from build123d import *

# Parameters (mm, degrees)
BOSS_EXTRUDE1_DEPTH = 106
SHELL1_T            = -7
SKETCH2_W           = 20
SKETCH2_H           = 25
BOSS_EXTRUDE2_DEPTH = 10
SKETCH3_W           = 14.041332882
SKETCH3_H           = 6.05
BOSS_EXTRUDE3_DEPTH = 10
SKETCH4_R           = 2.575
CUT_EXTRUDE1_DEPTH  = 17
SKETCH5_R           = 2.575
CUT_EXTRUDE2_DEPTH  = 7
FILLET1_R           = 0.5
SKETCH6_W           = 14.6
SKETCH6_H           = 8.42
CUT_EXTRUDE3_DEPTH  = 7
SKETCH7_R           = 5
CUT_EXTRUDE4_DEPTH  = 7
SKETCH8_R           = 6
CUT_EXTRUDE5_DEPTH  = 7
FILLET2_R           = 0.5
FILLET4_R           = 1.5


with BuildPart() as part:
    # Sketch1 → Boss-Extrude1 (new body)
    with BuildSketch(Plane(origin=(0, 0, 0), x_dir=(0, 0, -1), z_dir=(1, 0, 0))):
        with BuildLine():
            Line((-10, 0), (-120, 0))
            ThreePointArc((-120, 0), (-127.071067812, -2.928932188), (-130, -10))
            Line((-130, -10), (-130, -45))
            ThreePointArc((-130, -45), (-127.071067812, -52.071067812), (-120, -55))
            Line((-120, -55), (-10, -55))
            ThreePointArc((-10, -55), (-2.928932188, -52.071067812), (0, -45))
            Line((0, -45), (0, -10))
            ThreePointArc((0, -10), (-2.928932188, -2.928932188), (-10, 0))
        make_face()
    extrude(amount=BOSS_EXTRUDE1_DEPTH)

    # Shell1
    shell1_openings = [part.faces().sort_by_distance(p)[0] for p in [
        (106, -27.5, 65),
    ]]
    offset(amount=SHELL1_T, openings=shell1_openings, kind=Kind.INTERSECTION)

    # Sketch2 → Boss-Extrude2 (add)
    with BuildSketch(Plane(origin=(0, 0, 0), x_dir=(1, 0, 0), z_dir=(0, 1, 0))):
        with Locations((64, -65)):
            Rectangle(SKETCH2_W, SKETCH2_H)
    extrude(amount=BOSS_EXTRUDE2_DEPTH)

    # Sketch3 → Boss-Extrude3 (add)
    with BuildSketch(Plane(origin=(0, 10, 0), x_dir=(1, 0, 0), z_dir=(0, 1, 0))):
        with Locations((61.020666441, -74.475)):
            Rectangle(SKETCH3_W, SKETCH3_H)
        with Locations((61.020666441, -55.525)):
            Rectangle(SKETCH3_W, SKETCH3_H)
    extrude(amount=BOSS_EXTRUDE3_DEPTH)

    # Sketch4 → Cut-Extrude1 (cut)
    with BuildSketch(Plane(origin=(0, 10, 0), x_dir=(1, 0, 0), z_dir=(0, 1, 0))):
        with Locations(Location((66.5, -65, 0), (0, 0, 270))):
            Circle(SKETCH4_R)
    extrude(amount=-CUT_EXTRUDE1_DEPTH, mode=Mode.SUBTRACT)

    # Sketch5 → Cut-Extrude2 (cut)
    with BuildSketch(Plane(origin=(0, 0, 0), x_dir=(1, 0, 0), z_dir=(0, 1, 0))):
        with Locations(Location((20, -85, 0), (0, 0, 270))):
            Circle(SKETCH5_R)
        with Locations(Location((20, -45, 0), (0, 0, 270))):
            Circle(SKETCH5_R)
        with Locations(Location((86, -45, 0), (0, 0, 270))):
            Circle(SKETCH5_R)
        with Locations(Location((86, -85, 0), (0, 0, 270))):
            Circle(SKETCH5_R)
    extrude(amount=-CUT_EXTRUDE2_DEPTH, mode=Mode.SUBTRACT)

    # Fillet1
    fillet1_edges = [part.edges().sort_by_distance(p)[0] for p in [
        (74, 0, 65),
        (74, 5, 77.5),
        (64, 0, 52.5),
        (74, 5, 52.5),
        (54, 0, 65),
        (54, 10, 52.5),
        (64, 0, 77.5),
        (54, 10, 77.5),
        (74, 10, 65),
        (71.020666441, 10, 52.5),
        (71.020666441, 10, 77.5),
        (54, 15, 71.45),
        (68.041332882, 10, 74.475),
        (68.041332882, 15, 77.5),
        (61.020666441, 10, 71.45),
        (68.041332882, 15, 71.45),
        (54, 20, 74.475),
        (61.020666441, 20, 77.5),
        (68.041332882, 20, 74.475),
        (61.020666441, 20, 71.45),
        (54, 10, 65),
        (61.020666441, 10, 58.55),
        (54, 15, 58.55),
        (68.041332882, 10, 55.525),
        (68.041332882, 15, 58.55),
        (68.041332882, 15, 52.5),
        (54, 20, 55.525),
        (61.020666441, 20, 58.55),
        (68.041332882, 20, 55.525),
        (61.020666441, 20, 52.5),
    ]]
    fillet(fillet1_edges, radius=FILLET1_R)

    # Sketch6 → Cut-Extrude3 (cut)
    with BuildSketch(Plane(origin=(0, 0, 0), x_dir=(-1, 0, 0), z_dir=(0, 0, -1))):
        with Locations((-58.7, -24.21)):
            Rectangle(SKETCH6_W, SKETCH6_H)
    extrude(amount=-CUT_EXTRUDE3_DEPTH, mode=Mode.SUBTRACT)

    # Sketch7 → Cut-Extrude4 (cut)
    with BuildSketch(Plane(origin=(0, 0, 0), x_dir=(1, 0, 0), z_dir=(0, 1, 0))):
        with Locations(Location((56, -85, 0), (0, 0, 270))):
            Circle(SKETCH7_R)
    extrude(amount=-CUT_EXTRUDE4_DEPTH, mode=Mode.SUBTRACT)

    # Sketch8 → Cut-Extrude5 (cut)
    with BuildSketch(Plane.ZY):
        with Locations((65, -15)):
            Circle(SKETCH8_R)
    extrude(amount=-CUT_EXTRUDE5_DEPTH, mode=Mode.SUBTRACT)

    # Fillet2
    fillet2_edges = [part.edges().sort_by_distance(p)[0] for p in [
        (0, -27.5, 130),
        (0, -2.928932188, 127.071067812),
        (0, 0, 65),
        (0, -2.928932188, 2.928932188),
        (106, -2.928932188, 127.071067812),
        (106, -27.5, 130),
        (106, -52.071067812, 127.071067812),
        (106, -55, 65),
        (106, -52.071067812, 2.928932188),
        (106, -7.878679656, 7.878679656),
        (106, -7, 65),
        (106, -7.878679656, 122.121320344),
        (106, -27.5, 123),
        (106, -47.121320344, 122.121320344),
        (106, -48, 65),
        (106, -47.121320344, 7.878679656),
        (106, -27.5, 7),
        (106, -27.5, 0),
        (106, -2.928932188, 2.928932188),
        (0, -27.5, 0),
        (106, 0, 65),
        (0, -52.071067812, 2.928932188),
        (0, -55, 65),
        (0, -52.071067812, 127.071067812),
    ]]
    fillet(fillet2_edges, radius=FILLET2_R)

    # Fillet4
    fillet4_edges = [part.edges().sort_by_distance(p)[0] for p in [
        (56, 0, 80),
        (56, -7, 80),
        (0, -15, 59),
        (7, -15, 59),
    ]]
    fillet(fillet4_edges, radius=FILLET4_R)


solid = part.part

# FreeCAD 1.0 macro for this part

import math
import FreeCAD as App
import Part
import Sketcher
from FreeCAD import Vector
Q = App.Units.Quantity


def edges_at(feature, points):
    """Names of the edges that pass closest to the given points."""
    edges = feature.Shape.Edges
    near = lambda p: min(range(len(edges)), key=lambda i: edges[i].distToShape(Part.Vertex(*p))[0])
    return sorted({f"Edge{near(p) + 1}" for p in points})


def faces_at(feature, points):
    """Names of the faces that lie closest to the given points."""
    faces = feature.Shape.Faces
    near = lambda p: min(range(len(faces)), key=lambda i: faces[i].distToShape(Part.Vertex(*p))[0])
    return sorted({f"Face{near(p) + 1}" for p in points})


def add_polygon(sketch, points):
    """Adds a closed chain of lines whose ends are joined by coincident constraints."""
    first, n = sketch.GeometryCount, len(points)
    for a, b in zip(points, points[1:] + points[:1]):
        sketch.addGeometry(Part.LineSegment(App.Vector(*a, 0), App.Vector(*b, 0)), False)
    for i in range(n):
        sketch.addConstraint(Sketcher.Constraint("Coincident", first + i, 2, first + (i + 1) % n, 1))

doc = App.newDocument("Part")
params = doc.addObject("Spreadsheet::Sheet", "Params")
for row, (alias, value) in enumerate([
    ("sketch1_radius", "10 mm"),
    ("sketch1_width", "35 mm"),
    ("sketch1_height", "110 mm"),
    ("pad1_length", "106 mm"),
    ("thickness_wall", "7 mm"),
    ("sketch2_width", "20 mm"),
    ("sketch2_height", "25 mm"),
    ("pad2_length", "10 mm"),
    ("sketch3_height", "6.05 mm"),
    ("pad3_length", "10 mm"),
    ("sketch4_diameter", "5.15 mm"),
    ("pocket1_length", "17 mm"),
    ("sketch5_diameter", "5.15 mm"),
    ("pocket2_length", "7 mm"),
    ("fillet_radius", "0.5 mm"),
    ("sketch6_width", "14.6 mm"),
    ("sketch6_height", "8.42 mm"),
    ("pocket3_length", "7 mm"),
    ("sketch7_diameter", "10 mm"),
    ("pocket4_length", "7 mm"),
    ("sketch8_diameter", "12 mm"),
    ("pocket5_length", "7 mm"),
    ("fillet2_radius", "0.5 mm"),
    ("fillet3_radius", "1.5 mm"),
], start=1):
    params.set(f"A{row}", alias)
    params.set(f"B{row}", "=" + value)
    params.setAlias(f"B{row}", alias)

body = doc.addObject("PartDesign::Body", "Body")

# Sketch on YZ plane
sketch1 = body.newObject("Sketcher::SketchObject", "Sketch")
sketch1.AttachmentSupport = (doc.getObject("YZ_Plane"), [""])
sketch1.MapMode = "FlatFace"
sketch1.addGeometry(Part.LineSegment(Vector(0, 10, 0), Vector(0, 120, 0)), False)
sketch1.addGeometry(Part.ArcOfCircle(Part.Circle(Vector(-10, 120, 0), Vector(0, 0, 1), 10), math.radians(0), math.radians(90)), False)
sketch1.addGeometry(Part.LineSegment(Vector(-10, 130, 0), Vector(-45, 130, 0)), False)
sketch1.addGeometry(Part.ArcOfCircle(Part.Circle(Vector(-45, 120, 0), Vector(0, 0, 1), 10), math.radians(90), math.radians(180)), False)
sketch1.addGeometry(Part.LineSegment(Vector(-55, 120, 0), Vector(-55, 10, 0)), False)
sketch1.addGeometry(Part.ArcOfCircle(Part.Circle(Vector(-45, 10, 0), Vector(0, 0, 1), 10), math.radians(180), math.radians(270)), False)
sketch1.addGeometry(Part.LineSegment(Vector(-45, 0, 0), Vector(-10, 0, 0)), False)
sketch1.addGeometry(Part.ArcOfCircle(Part.Circle(Vector(-10, 10, 0), Vector(0, 0, 1), 10), math.radians(-90), math.radians(0)), False)
sketch1.addConstraint(Sketcher.Constraint("Tangent", 0, 2, 1, 1))
sketch1.addConstraint(Sketcher.Constraint("Tangent", 1, 2, 2, 1))
sketch1.addConstraint(Sketcher.Constraint("Tangent", 2, 2, 3, 1))
sketch1.addConstraint(Sketcher.Constraint("Tangent", 3, 2, 4, 1))
sketch1.addConstraint(Sketcher.Constraint("Tangent", 4, 2, 5, 1))
sketch1.addConstraint(Sketcher.Constraint("Tangent", 5, 2, 6, 1))
sketch1.addConstraint(Sketcher.Constraint("Tangent", 6, 2, 7, 1))
sketch1.addConstraint(Sketcher.Constraint("Tangent", 7, 2, 0, 1))
sketch1.addConstraint(Sketcher.Constraint("Vertical", 0))
sketch1.addConstraint(Sketcher.Constraint("Horizontal", 2))
sketch1.addConstraint(Sketcher.Constraint("Vertical", 4))
sketch1.addConstraint(Sketcher.Constraint("Horizontal", 6))
sketch1.addConstraint(Sketcher.Constraint("Equal", 1, 3))
sketch1.addConstraint(Sketcher.Constraint("Equal", 3, 5))
sketch1.addConstraint(Sketcher.Constraint("Equal", 5, 7))
sketch1.addConstraint(Sketcher.Constraint("PointOnObject", 0, 2, -2))
sketch1.addConstraint(Sketcher.Constraint("PointOnObject", 5, 2, -1))
sketch1.addConstraint(Sketcher.Constraint("Radius", 1, Q("10 mm")))
sketch1.addConstraint(Sketcher.Constraint("DistanceX", 2, 2, 2, 1, Q("35 mm")))
sketch1.addConstraint(Sketcher.Constraint("DistanceY", 0, 1, 0, 2, Q("110 mm")))
sketch1.setExpression("Constraints[17]", "Params.sketch1_radius")
sketch1.setExpression("Constraints[18]", "Params.sketch1_width")
sketch1.setExpression("Constraints[19]", "Params.sketch1_height")
pad1 = body.newObject("PartDesign::Pad", "Pad")
pad1.Profile = sketch1
pad1.setExpression("Length", "Params.pad1_length")
doc.recompute()

thickness = body.newObject("PartDesign::Thickness", "Thickness")
thickness.Base = (pad1, faces_at(pad1, [(106, -27.5, 65)]))
thickness.setExpression("Value", "Params.thickness_wall")
thickness.Reversed = True
thickness.Join = "Intersection"

# Sketch on XZ plane
sketch2 = body.newObject("Sketcher::SketchObject", "Sketch001")
sketch2.AttachmentSupport = (doc.getObject("XZ_Plane"), [""])
sketch2.MapMode = "FlatFace"
add_polygon(sketch2, [(54, 52), (54, 78), (74, 78), (74, 52)])  # lines 0-3
sketch2.addConstraint(Sketcher.Constraint("Vertical", 0))
sketch2.addConstraint(Sketcher.Constraint("Horizontal", 1))
sketch2.addConstraint(Sketcher.Constraint("Vertical", 2))
sketch2.addConstraint(Sketcher.Constraint("Horizontal", 3))
sketch2.addConstraint(Sketcher.Constraint("DistanceX", 1, 1, 1, 2, Q("20 mm")))
sketch2.addConstraint(Sketcher.Constraint("DistanceY", 0, 1, 0, 2, Q("25 mm")))
sketch2.addConstraint(Sketcher.Constraint("DistanceX", -1, 1, 0, 2, Q("54 mm")))
sketch2.addConstraint(Sketcher.Constraint("DistanceY", -1, 1, 0, 2, Q("77.5 mm")))
sketch2.setExpression("Constraints[8]", "Params.sketch2_width")
sketch2.setExpression("Constraints[9]", "Params.sketch2_height")
pad2 = body.newObject("PartDesign::Pad", "Pad001")
pad2.Profile = sketch2
pad2.setExpression("Length", "Params.pad2_length")
pad2.Reversed = True

# Sketch on XZ plane
sketch3 = body.newObject("Sketcher::SketchObject", "Sketch002")
sketch3.AttachmentSupport = (doc.getObject("XZ_Plane"), [""])
sketch3.MapMode = "FlatFace"
sketch3.AttachmentOffset = App.Placement(Vector(0, 0, -10), App.Rotation())
add_polygon(sketch3, [(54, 71), (54, 78), (68, 78), (68, 71)])  # lines 0-3
add_polygon(sketch3, [(54, 52), (54, 59), (68, 59), (68, 52)])  # lines 4-7
sketch3.addConstraint(Sketcher.Constraint("Vertical", 0))
sketch3.addConstraint(Sketcher.Constraint("Horizontal", 1))
sketch3.addConstraint(Sketcher.Constraint("Vertical", 2))
sketch3.addConstraint(Sketcher.Constraint("Horizontal", 3))
sketch3.addConstraint(Sketcher.Constraint("Vertical", 4))
sketch3.addConstraint(Sketcher.Constraint("Horizontal", 5))
sketch3.addConstraint(Sketcher.Constraint("Vertical", 6))
sketch3.addConstraint(Sketcher.Constraint("Horizontal", 7))
sketch3.addConstraint(Sketcher.Constraint("Vertical", 3, 2, 4, 2))
sketch3.addConstraint(Sketcher.Constraint("Vertical", 2, 2, 5, 2))
sketch3.addConstraint(Sketcher.Constraint("Equal", 2, 4))
sketch3.addConstraint(Sketcher.Constraint("DistanceX", -1, 1, 0, 2, Q("54 mm")))
sketch3.addConstraint(Sketcher.Constraint("DistanceY", 6, 2, 1, 2, Q("25 mm")))
sketch3.addConstraint(Sketcher.Constraint("DistanceY", 0, 1, 0, 2, Q("6.05 mm")))
sketch3.addConstraint(Sketcher.Constraint("DistanceY", -1, 1, 0, 2, Q("77.5 mm")))
sketch3.addConstraint(Sketcher.Constraint("DistanceX", 1, 1, 1, 2, Q("14.041333 mm")))
sketch3.setExpression("Constraints[21]", "Params.sketch3_height")
pad3 = body.newObject("PartDesign::Pad", "Pad002")
pad3.Profile = sketch3
pad3.setExpression("Length", "Params.pad3_length")
pad3.Reversed = True

# Sketch on XZ plane
sketch4 = body.newObject("Sketcher::SketchObject", "Sketch003")
sketch4.AttachmentSupport = (doc.getObject("XZ_Plane"), [""])
sketch4.MapMode = "FlatFace"
sketch4.AttachmentOffset = App.Placement(Vector(0, 0, -10), App.Rotation())
sketch4.addGeometry(Part.Circle(Vector(66.5, 65, 0), Vector(0, 0, 1), 2.6), False)
sketch4.addConstraint(Sketcher.Constraint("Diameter", 0, Q("5.15 mm")))
sketch4.addConstraint(Sketcher.Constraint("DistanceY", -1, 1, 0, 3, Q("65 mm")))
sketch4.addConstraint(Sketcher.Constraint("DistanceX", -1, 1, 0, 3, Q("66.5 mm")))
sketch4.setExpression("Constraints[0]", "Params.sketch4_diameter")
pocket1 = body.newObject("PartDesign::Pocket", "Pocket")
pocket1.Profile = sketch4
pocket1.setExpression("Length", "Params.pocket1_length")
pocket1.Reversed = True

# Sketch on XZ plane
sketch5 = body.newObject("Sketcher::SketchObject", "Sketch004")
sketch5.AttachmentSupport = (doc.getObject("XZ_Plane"), [""])
sketch5.MapMode = "FlatFace"
sketch5.addGeometry(Part.Circle(Vector(20, 85, 0), Vector(0, 0, 1), 2.6), False)
sketch5.addGeometry(Part.Circle(Vector(20, 45, 0), Vector(0, 0, 1), 2.6), False)
sketch5.addGeometry(Part.Circle(Vector(86, 45, 0), Vector(0, 0, 1), 2.6), False)
sketch5.addGeometry(Part.Circle(Vector(86, 85, 0), Vector(0, 0, 1), 2.6), False)
sketch5.addConstraint(Sketcher.Constraint("Equal", 0, 1))
sketch5.addConstraint(Sketcher.Constraint("Equal", 1, 2))
sketch5.addConstraint(Sketcher.Constraint("Equal", 2, 3))
sketch5.addConstraint(Sketcher.Constraint("Horizontal", 1, 3, 2, 3))
sketch5.addConstraint(Sketcher.Constraint("Horizontal", 0, 3, 3, 3))
sketch5.addConstraint(Sketcher.Constraint("Vertical", 0, 3, 1, 3))
sketch5.addConstraint(Sketcher.Constraint("Vertical", 2, 3, 3, 3))
sketch5.addConstraint(Sketcher.Constraint("Diameter", 0, Q("5.15 mm")))
sketch5.addConstraint(Sketcher.Constraint("DistanceX", -1, 1, 0, 3, Q("20 mm")))
sketch5.addConstraint(Sketcher.Constraint("DistanceY", -1, 1, 0, 3, Q("85 mm")))
sketch5.addConstraint(Sketcher.Constraint("DistanceY", -1, 1, 1, 3, Q("45 mm")))
sketch5.addConstraint(Sketcher.Constraint("DistanceX", -1, 1, 2, 3, Q("86 mm")))
sketch5.setExpression("Constraints[7]", "Params.sketch5_diameter")
pocket2 = body.newObject("PartDesign::Pocket", "Pocket001")
pocket2.Profile = sketch5
pocket2.setExpression("Length", "Params.pocket2_length")
pocket2.Reversed = True
doc.recompute()

fillet = body.newObject("PartDesign::Fillet", "Fillet")
fillet.Base = (pocket2, edges_at(pocket2, [
    (74, 0, 65),
    (74, 5, 77.5),
    (64, 0, 52.5),
    (74, 5, 52.5),
    (54, 0, 65),
    (54, 10, 52.5),
    (64, 0, 77.5),
    (54, 10, 77.5),
    (74, 10, 65),
    (71.021, 10, 52.5),
    (71.021, 10, 77.5),
    (54, 15, 71.45),
    (68.041, 10, 74.475),
    (68.041, 15, 77.5),
    (61.021, 10, 71.45),
    (68.041, 15, 71.45),
    (54, 20, 74.475),
    (61.021, 20, 77.5),
    (68.041, 20, 74.475),
    (61.021, 20, 71.45),
    (54, 10, 65),
    (61.021, 10, 58.55),
    (54, 15, 58.55),
    (68.041, 10, 55.525),
    (68.041, 15, 58.55),
    (68.041, 15, 52.5),
    (54, 20, 55.525),
    (61.021, 20, 58.55),
    (68.041, 20, 55.525),
    (61.021, 20, 52.5),
]))
fillet.setExpression("Radius", "Params.fillet_radius")

# Sketch on XY plane
sketch6 = body.newObject("Sketcher::SketchObject", "Sketch005")
sketch6.AttachmentSupport = (doc.getObject("XY_Plane"), [""])
sketch6.MapMode = "FlatFace"
add_polygon(sketch6, [(66, -20), (66, -28), (51, -28), (51, -20)])  # lines 0-3
sketch6.addConstraint(Sketcher.Constraint("Vertical", 0))
sketch6.addConstraint(Sketcher.Constraint("Horizontal", 1))
sketch6.addConstraint(Sketcher.Constraint("Vertical", 2))
sketch6.addConstraint(Sketcher.Constraint("Horizontal", 3))
sketch6.addConstraint(Sketcher.Constraint("DistanceX", 1, 2, 1, 1, Q("14.6 mm")))
sketch6.addConstraint(Sketcher.Constraint("DistanceX", -1, 1, 0, 2, Q("66 mm")))
sketch6.addConstraint(Sketcher.Constraint("DistanceY", 2, 2, -1, 1, Q("20 mm")))
sketch6.addConstraint(Sketcher.Constraint("DistanceY", 0, 2, 0, 1, Q("8.42 mm")))
sketch6.setExpression("Constraints[8]", "Params.sketch6_width")
sketch6.setExpression("Constraints[11]", "Params.sketch6_height")
pocket3 = body.newObject("PartDesign::Pocket", "Pocket002")
pocket3.Profile = sketch6
pocket3.setExpression("Length", "Params.pocket3_length")
pocket3.Reversed = True

# Sketch on XZ plane
sketch7 = body.newObject("Sketcher::SketchObject", "Sketch006")
sketch7.AttachmentSupport = (doc.getObject("XZ_Plane"), [""])
sketch7.MapMode = "FlatFace"
sketch7.addGeometry(Part.Circle(Vector(56, 85, 0), Vector(0, 0, 1), 5), False)
sketch7.addConstraint(Sketcher.Constraint("Diameter", 0, Q("10 mm")))
sketch7.addConstraint(Sketcher.Constraint("DistanceX", -1, 1, 0, 3, Q("56 mm")))
sketch7.addConstraint(Sketcher.Constraint("DistanceY", -1, 1, 0, 3, Q("85 mm")))
sketch7.setExpression("Constraints[0]", "Params.sketch7_diameter")
pocket4 = body.newObject("PartDesign::Pocket", "Pocket003")
pocket4.Profile = sketch7
pocket4.setExpression("Length", "Params.pocket4_length")
pocket4.Reversed = True

# Sketch on YZ plane
sketch8 = body.newObject("Sketcher::SketchObject", "Sketch007")
sketch8.AttachmentSupport = (doc.getObject("YZ_Plane"), [""])
sketch8.MapMode = "FlatFace"
sketch8.addGeometry(Part.Circle(Vector(-15, 65, 0), Vector(0, 0, 1), 6), False)
sketch8.addConstraint(Sketcher.Constraint("Diameter", 0, Q("12 mm")))
sketch8.addConstraint(Sketcher.Constraint("DistanceX", 0, 3, -1, 1, Q("15 mm")))
sketch8.addConstraint(Sketcher.Constraint("DistanceY", -1, 1, 0, 3, Q("65 mm")))
sketch8.setExpression("Constraints[0]", "Params.sketch8_diameter")
pocket5 = body.newObject("PartDesign::Pocket", "Pocket004")
pocket5.Profile = sketch8
pocket5.setExpression("Length", "Params.pocket5_length")
pocket5.Reversed = True
doc.recompute()

fillet2 = body.newObject("PartDesign::Fillet", "Fillet001")
fillet2.Base = (pocket5, edges_at(pocket5, [
    (0, -27.5, 130),
    (0, -2.929, 127.071),
    (0, 0, 65),
    (0, -2.929, 2.929),
    (106, -2.929, 127.071),
    (106, -27.5, 130),
    (106, -52.071, 127.071),
    (106, -55, 65),
    (106, -52.071, 2.929),
    (106, -7.879, 7.879),
    (106, -7, 65),
    (106, -7.879, 122.121),
    (106, -27.5, 123),
    (106, -47.121, 122.121),
    (106, -48, 65),
    (106, -47.121, 7.879),
    (106, -27.5, 7),
    (106, -27.5, 0),
    (106, -2.929, 2.929),
    (0, -27.5, 0),
    (106, 0, 65),
    (0, -52.071, 2.929),
    (0, -55, 65),
    (0, -52.071, 127.071),
]))
fillet2.setExpression("Radius", "Params.fillet2_radius")
doc.recompute()

fillet3 = body.newObject("PartDesign::Fillet", "Fillet002")
fillet3.Base = (fillet2, edges_at(fillet2, [
    (56, 0, 80),
    (56, -7, 80),
    (0, -15, 59),
    (7, -15, 59),
]))
fillet3.setExpression("Radius", "Params.fillet3_radius")

doc.recompute()
